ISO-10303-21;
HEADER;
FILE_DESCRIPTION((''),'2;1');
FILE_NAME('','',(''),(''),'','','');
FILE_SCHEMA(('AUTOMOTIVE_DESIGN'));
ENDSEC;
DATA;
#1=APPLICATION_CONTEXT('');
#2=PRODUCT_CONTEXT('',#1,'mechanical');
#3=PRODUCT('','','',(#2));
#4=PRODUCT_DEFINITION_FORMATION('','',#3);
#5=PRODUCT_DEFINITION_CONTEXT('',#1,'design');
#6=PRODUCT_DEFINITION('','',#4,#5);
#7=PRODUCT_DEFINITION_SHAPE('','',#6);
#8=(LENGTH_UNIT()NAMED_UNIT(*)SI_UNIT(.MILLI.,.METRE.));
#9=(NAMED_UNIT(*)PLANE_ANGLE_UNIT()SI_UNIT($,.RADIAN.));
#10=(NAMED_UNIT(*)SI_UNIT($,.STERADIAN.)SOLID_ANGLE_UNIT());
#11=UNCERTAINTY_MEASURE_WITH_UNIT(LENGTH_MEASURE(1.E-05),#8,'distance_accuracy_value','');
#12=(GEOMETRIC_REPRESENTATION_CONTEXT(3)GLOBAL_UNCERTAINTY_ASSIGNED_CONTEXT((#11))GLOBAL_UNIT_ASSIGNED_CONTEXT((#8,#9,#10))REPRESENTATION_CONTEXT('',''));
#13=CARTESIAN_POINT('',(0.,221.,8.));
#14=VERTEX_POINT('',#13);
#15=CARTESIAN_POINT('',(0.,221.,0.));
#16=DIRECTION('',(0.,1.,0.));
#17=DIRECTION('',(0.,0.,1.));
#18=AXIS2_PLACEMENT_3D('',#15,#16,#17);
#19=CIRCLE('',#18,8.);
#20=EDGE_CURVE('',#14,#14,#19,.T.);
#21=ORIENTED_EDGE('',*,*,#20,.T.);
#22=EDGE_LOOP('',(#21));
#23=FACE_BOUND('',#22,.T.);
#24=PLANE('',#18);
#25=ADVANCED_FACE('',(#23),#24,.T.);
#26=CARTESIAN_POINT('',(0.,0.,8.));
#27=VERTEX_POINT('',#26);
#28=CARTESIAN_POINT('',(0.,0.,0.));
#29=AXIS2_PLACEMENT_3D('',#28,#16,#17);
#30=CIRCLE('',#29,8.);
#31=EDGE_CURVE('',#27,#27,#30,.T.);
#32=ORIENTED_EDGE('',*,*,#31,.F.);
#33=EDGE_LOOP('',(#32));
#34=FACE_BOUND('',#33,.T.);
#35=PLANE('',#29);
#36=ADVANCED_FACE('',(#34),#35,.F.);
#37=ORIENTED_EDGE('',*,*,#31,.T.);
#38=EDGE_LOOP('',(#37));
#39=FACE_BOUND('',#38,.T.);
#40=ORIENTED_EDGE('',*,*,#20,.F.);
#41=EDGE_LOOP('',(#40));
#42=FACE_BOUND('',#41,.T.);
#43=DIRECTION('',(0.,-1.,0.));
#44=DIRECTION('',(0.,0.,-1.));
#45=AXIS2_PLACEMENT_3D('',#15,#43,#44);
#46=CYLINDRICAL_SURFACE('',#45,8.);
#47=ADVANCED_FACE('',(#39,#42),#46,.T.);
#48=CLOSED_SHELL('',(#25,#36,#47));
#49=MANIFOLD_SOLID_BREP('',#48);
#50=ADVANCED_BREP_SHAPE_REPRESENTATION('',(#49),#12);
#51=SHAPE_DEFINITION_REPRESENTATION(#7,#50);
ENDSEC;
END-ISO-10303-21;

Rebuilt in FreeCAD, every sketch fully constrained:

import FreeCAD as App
import Part
import Sketcher
from FreeCAD import Vector
Q = App.Units.Quantity

doc = App.newDocument("Part")
body = doc.addObject("PartDesign::Body", "Body")

sketch1 = body.newObject("Sketcher::SketchObject", "Sketch")
sketch1.AttachmentSupport = (doc.getObject("XZ_Plane"), [""])
sketch1.MapMode = "FlatFace"
sketch1.addGeometry(Part.Circle(Vector(0, 0, 0), Vector(0, 0, 1), 8), False)
sketch1.addConstraint([
    Sketcher.Constraint("Coincident", 0, 3, -1, 1),
    Sketcher.Constraint("Diameter", 0, Q("16 mm")),
])
pad1 = body.newObject("PartDesign::Pad", "Pad")
pad1.Profile = sketch1
pad1.Length = 221
pad1.Reversed = True

doc.recompute()
